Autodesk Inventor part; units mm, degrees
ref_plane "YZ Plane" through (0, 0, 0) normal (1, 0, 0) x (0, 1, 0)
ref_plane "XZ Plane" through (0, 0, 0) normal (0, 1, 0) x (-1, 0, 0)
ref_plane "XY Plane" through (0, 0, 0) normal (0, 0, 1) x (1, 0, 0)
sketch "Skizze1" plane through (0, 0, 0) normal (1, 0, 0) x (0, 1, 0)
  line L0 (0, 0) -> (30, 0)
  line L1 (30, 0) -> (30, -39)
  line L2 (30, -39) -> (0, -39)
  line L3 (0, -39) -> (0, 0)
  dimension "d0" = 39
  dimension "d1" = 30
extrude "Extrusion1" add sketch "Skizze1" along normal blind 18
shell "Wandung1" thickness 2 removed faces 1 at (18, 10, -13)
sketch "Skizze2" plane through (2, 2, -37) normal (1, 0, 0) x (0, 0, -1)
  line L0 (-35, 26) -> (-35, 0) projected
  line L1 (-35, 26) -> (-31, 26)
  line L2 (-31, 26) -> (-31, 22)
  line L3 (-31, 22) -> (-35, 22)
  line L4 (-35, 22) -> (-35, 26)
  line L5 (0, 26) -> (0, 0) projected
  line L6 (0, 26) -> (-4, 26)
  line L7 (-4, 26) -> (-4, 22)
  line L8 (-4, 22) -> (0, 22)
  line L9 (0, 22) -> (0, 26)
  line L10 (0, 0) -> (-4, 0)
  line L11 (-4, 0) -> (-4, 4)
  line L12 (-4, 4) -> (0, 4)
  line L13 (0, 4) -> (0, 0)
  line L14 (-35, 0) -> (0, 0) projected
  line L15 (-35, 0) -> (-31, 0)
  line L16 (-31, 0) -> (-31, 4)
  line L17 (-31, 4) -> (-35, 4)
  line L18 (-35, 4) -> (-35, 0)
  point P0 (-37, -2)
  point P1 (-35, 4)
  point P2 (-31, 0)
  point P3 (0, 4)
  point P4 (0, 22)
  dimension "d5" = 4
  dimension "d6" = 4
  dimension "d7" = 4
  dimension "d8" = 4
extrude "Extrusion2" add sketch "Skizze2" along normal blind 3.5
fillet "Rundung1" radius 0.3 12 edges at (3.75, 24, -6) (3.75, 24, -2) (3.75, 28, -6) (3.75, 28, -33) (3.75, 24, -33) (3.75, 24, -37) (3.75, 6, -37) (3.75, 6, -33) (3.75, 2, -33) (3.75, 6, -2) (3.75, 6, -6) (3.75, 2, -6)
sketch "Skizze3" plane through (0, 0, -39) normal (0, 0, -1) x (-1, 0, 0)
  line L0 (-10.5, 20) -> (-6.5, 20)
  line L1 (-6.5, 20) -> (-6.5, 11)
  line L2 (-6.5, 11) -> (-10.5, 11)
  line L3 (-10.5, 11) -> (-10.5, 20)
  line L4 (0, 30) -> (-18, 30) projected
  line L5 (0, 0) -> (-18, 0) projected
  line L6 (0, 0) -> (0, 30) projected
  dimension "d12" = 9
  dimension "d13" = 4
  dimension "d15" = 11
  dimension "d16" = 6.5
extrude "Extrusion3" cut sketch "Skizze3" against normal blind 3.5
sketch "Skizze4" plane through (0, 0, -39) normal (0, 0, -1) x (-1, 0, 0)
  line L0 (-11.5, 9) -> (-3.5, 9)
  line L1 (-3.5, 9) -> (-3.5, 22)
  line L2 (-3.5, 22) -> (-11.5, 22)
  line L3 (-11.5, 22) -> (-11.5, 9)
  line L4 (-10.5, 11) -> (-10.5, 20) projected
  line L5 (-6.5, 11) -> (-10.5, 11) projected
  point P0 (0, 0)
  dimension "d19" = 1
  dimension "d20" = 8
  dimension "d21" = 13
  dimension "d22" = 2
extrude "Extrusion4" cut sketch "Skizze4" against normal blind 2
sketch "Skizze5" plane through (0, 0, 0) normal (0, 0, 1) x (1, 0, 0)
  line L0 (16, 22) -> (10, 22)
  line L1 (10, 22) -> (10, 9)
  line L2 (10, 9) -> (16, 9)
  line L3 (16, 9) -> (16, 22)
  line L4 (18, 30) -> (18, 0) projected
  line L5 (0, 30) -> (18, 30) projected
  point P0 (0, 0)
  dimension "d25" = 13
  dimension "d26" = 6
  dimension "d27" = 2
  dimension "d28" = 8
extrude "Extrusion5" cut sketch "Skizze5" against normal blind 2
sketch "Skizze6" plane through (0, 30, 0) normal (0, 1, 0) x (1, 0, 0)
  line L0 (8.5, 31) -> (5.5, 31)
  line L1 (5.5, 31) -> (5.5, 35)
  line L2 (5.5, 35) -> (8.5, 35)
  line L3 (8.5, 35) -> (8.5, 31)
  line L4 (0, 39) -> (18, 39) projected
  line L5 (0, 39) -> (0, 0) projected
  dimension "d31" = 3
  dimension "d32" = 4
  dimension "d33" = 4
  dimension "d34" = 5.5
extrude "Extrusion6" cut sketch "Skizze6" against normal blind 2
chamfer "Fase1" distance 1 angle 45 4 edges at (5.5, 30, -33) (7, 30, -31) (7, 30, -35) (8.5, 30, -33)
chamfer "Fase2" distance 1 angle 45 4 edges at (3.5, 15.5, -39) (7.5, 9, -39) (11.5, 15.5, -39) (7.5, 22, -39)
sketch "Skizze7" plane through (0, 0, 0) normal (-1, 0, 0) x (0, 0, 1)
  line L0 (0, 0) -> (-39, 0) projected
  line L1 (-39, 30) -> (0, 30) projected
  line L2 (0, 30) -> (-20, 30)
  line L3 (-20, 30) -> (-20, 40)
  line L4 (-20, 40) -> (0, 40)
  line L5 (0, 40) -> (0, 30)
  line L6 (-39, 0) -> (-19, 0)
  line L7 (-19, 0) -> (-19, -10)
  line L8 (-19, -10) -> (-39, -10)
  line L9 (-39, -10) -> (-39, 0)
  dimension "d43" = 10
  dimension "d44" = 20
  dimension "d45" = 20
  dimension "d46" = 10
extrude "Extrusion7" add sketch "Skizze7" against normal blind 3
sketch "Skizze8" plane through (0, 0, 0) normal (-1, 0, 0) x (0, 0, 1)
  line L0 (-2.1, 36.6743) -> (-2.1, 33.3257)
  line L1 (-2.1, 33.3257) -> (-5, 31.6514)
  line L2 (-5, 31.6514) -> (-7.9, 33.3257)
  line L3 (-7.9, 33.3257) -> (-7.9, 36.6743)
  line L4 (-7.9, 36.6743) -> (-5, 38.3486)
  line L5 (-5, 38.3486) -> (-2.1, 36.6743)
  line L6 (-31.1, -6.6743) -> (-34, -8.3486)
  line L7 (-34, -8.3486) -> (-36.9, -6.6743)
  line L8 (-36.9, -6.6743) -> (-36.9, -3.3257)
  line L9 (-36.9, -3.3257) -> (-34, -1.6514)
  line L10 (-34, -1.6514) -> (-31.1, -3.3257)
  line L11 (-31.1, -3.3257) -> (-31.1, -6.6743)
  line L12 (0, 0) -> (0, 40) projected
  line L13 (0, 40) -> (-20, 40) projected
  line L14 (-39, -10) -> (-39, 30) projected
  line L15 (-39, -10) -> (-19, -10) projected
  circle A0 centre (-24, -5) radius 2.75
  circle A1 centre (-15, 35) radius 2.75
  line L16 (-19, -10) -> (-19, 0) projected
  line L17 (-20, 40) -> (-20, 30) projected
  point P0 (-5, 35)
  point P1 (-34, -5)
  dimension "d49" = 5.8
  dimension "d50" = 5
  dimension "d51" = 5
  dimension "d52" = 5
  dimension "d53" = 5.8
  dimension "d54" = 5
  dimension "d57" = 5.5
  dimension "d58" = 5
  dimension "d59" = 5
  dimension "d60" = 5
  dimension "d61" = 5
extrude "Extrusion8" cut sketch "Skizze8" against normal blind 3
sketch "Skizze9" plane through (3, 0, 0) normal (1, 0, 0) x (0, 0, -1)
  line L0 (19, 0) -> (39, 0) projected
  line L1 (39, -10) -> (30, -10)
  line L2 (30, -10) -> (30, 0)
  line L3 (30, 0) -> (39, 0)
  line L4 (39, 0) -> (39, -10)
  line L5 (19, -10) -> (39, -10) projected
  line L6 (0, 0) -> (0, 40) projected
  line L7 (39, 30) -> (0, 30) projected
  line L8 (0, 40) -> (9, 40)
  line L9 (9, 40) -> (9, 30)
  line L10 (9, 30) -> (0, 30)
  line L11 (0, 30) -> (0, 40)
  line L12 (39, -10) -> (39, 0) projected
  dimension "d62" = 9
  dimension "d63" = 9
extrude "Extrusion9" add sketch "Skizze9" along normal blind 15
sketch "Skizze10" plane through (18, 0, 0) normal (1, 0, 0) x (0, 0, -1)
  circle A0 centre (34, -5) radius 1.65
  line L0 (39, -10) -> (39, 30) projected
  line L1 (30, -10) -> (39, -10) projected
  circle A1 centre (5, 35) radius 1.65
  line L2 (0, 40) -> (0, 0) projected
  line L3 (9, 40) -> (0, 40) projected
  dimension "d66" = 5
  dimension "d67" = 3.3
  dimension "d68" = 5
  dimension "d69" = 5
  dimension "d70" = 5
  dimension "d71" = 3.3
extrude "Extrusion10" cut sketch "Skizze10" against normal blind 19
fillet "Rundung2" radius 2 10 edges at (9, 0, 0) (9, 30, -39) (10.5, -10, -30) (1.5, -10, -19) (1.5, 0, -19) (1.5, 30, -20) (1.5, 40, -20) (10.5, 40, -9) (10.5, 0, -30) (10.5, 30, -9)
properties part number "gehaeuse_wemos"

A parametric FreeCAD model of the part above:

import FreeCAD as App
import Part
import Sketcher

V = App.Vector
Q = App.Units.Quantity


def edges_at(feature, points):
    """Names of the edges that pass closest to the given points."""
    edges = feature.Shape.Edges
    near = lambda p: min(range(len(edges)), key=lambda i: edges[i].distToShape(Part.Vertex(*p))[0])
    return sorted({f"Edge{near(p) + 1}" for p in points})


def faces_at(feature, points):
    """Names of the faces that lie closest to the given points."""
    faces = feature.Shape.Faces
    near = lambda p: min(range(len(faces)), key=lambda i: faces[i].distToShape(Part.Vertex(*p))[0])
    return sorted({f"Face{near(p) + 1}" for p in points})


def add_polygon(sketch, points):
    """Adds a closed chain of lines whose ends are joined by coincident constraints."""
    first, n = sketch.GeometryCount, len(points)
    for a, b in zip(points, points[1:] + points[:1]):
        sketch.addGeometry(Part.LineSegment(App.Vector(*a, 0), App.Vector(*b, 0)), False)
    for i in range(n):
        sketch.addConstraint(Sketcher.Constraint("Coincident", first + i, 2, first + (i + 1) % n, 1))

doc = App.newDocument("Part")
params = doc.addObject("Spreadsheet::Sheet", "Params")
for row, (alias, value) in enumerate([
    ("sketch1_width", "30 mm"),
    ("sketch1_height", "39 mm"),
    ("pad1_length", "18 mm"),
    ("thickness_wall", "2 mm"),
    ("sketch2_width", "4 mm"),
    ("pad2_length", "3.5 mm"),
    ("fillet_radius", "0.3 mm"),
    ("sketch3_width", "4 mm"),
    ("sketch3_height", "9 mm"),
    ("pocket1_length", "3.5 mm"),
    ("sketch4_width", "8 mm"),
    ("sketch4_height", "13 mm"),
    ("pocket2_length", "2 mm"),
    ("sketch5_width", "6 mm"),
    ("sketch5_height", "13 mm"),
    ("pocket3_length", "2 mm"),
    ("sketch6_width", "3 mm"),
    ("sketch6_height", "4 mm"),
    ("pocket4_length", "2 mm"),
    ("chamfer_size", "1 mm"),
    ("chamfer2_size", "1 mm"),
    ("sketch7_width", "10 mm"),
    ("sketch7_height", "20 mm"),
    ("pad3_length", "3 mm"),
    ("sketch8_diameter", "5.5 mm"),
    ("pocket5_length", "3 mm"),
    ("sketch9_height", "9 mm"),
    ("sketch9_width", "10 mm"),
    ("pad4_length", "15 mm"),
    ("sketch10_diameter", "3.3 mm"),
    ("pocket6_length", "19 mm"),
    ("fillet2_radius", "2 mm"),
], start=1):
    params.set(f"A{row}", alias)
    params.set(f"B{row}", "=" + value)
    params.setAlias(f"B{row}", alias)

body = doc.addObject("PartDesign::Body", "Body")

sketch1 = body.newObject("Sketcher::SketchObject", "Sketch")
sketch1.AttachmentSupport = (doc.getObject("YZ_Plane"), [""])
sketch1.MapMode = "FlatFace"
add_polygon(sketch1, [(30, 0), (0, 0), (0, -39), (30, -39)])
sketch1.addConstraint([
    Sketcher.Constraint("Horizontal", 0),
    Sketcher.Constraint("Vertical", 1),
    Sketcher.Constraint("Horizontal", 2),
    Sketcher.Constraint("Vertical", 3),
    Sketcher.Constraint("Coincident", 0, 2, -1, 1),
    Sketcher.Constraint("DistanceX", 0, 2, 0, 1, 30.0),
    Sketcher.Constraint("DistanceY", 1, 2, 1, 1, 39.0),
])
sketch1.setExpression("Constraints[9]", "Params.sketch1_width")
sketch1.setExpression("Constraints[10]", "Params.sketch1_height")
pad1 = body.newObject("PartDesign::Pad", "Pad")
pad1.Profile = sketch1
pad1.setExpression("Length", "Params.pad1_length")
doc.recompute()

thickness = body.newObject("PartDesign::Thickness", "Thickness")
thickness.Base = (pad1, faces_at(pad1, [(18, 10, -13)]))
thickness.setExpression("Value", "Params.thickness_wall")
thickness.Reversed = True
thickness.Join = "Intersection"

sketch2 = body.newObject("Sketcher::SketchObject", "Sketch001")
sketch2.AttachmentSupport = (doc.getObject("YZ_Plane"), [""])
sketch2.MapMode = "FlatFace"
sketch2.AttachmentOffset = App.Placement(V(0, 0, 2), App.Rotation())
add_polygon(sketch2, [(28, -6), (28, -2), (24, -2), (24, -6)])
add_polygon(sketch2, [(24, -33), (24, -37), (28, -37), (28, -33)])
add_polygon(sketch2, [(6, -33), (2, -33), (2, -37), (6, -37)])
add_polygon(sketch2, [(6, -6), (6, -2), (2, -2), (2, -6)])
sketch2.addConstraint([
    Sketcher.Constraint("Vertical", 0),
    Sketcher.Constraint("Horizontal", 1),
    Sketcher.Constraint("Vertical", 2),
    Sketcher.Constraint("Horizontal", 3),
    Sketcher.Constraint("Vertical", 4),
    Sketcher.Constraint("Horizontal", 5),
    Sketcher.Constraint("Vertical", 6),
    Sketcher.Constraint("Horizontal", 7),
    Sketcher.Constraint("Horizontal", 8),
    Sketcher.Constraint("Vertical", 9),
    Sketcher.Constraint("Horizontal", 10),
    Sketcher.Constraint("Vertical", 11),
    Sketcher.Constraint("Vertical", 12),
    Sketcher.Constraint("Horizontal", 13),
    Sketcher.Constraint("Vertical", 14),
    Sketcher.Constraint("Horizontal", 15),
    Sketcher.Constraint("Horizontal", 7, 2, 8, 2),
    Sketcher.Constraint("Horizontal", 5, 2, 9, 2),
    Sketcher.Constraint("Horizontal", 1, 2, 12, 2),
    Sketcher.Constraint("Horizontal", 3, 2, 14, 2),
    Sketcher.Constraint("Vertical", 2, 2, 4, 2),
    Sketcher.Constraint("Vertical", 3, 2, 5, 2),
    Sketcher.Constraint("Vertical", 11, 2, 12, 2),
    Sketcher.Constraint("Vertical", 9, 2, 13, 2),
    Sketcher.Constraint("Equal", 7, 8),
    Sketcher.Constraint("Equal", 15, 0),
    Sketcher.Constraint("Equal", 2, 4),
    Sketcher.Constraint("DistanceX", 1, 2, 1, 1, 4.0),
    Sketcher.Constraint("DistanceX", -1, 1, 0, 2, 28.0),
    Sketcher.Constraint("DistanceY", 0, 2, -1, 1, 2.0),
    Sketcher.Constraint("DistanceY", 4, 2, -1, 1, 37.0),
    Sketcher.Constraint("DistanceX", -1, 1, 8, 2, 2.0),
])
sketch2.setExpression("Constraints[43]", "Params.sketch2_width")
pad2 = body.newObject("PartDesign::Pad", "Pad001")
pad2.Profile = sketch2
pad2.setExpression("Length", "Params.pad2_length")
doc.recompute()

fillet = body.newObject("PartDesign::Fillet", "Fillet")
fillet.Base = (pad2, edges_at(pad2, [
    (3.75, 24, -6),
    (3.75, 24, -2),
    (3.75, 28, -6),
    (3.75, 28, -33),
    (3.75, 24, -33),
    (3.75, 24, -37),
    (3.75, 6, -37),
    (3.75, 6, -33),
    (3.75, 2, -33),
    (3.75, 6, -2),
    (3.75, 6, -6),
    (3.75, 2, -6),
]))
fillet.setExpression("Radius", "Params.fillet_radius")

sketch3 = body.newObject("Sketcher::SketchObject", "Sketch002")
sketch3.AttachmentSupport = (doc.getObject("XY_Plane"), [""])
sketch3.MapMode = "FlatFace"
sketch3.AttachmentOffset = App.Placement(V(0, 0, -39), App.Rotation())
add_polygon(sketch3, [(6.5, 20), (10.5, 20), (10.5, 11), (6.5, 11)])
sketch3.addConstraint([
    Sketcher.Constraint("Horizontal", 0),
    Sketcher.Constraint("Vertical", 1),
    Sketcher.Constraint("Horizontal", 2),
    Sketcher.Constraint("Vertical", 3),
    Sketcher.Constraint("DistanceX", 0, 1, 0, 2, 4.0),
    Sketcher.Constraint("DistanceY", 1, 2, 1, 1, 9.0),
    Sketcher.Constraint("DistanceY", -1, 1, 1, 2, 11.0),
    Sketcher.Constraint("DistanceX", -1, 1, 2, 2, 6.5),
])
sketch3.setExpression("Constraints[8]", "Params.sketch3_width")
sketch3.setExpression("Constraints[9]", "Params.sketch3_height")
pocket1 = body.newObject("PartDesign::Pocket", "Pocket")
pocket1.Profile = sketch3
pocket1.setExpression("Length", "Params.pocket1_length")
pocket1.Reversed = True

sketch4 = body.newObject("Sketcher::SketchObject", "Sketch003")
sketch4.AttachmentSupport = (doc.getObject("XY_Plane"), [""])
sketch4.MapMode = "FlatFace"
sketch4.AttachmentOffset = App.Placement(V(0, 0, -39), App.Rotation())
add_polygon(sketch4, [(11.5, 22), (11.5, 9), (3.5, 9), (3.5, 22)])
sketch4.addConstraint([
    Sketcher.Constraint("Vertical", 0),
    Sketcher.Constraint("Horizontal", 1),
    Sketcher.Constraint("Vertical", 2),
    Sketcher.Constraint("Horizontal", 3),
    Sketcher.Constraint("DistanceX", 1, 2, 1, 1, 8.0),
    Sketcher.Constraint("DistanceY", 0, 2, 0, 1, 13.0),
    Sketcher.Constraint("DistanceY", -1, 1, 0, 2, 9.0),
    Sketcher.Constraint("DistanceX", -1, 1, 0, 2, 11.5),
])
sketch4.setExpression("Constraints[8]", "Params.sketch4_width")
sketch4.setExpression("Constraints[9]", "Params.sketch4_height")
pocket2 = body.newObject("PartDesign::Pocket", "Pocket001")
pocket2.Profile = sketch4
pocket2.setExpression("Length", "Params.pocket2_length")
pocket2.Reversed = True

sketch5 = body.newObject("Sketcher::SketchObject", "Sketch004")
sketch5.AttachmentSupport = (doc.getObject("XY_Plane"), [""])
sketch5.MapMode = "FlatFace"
add_polygon(sketch5, [(16, 9), (16, 22), (10, 22), (10, 9)])
sketch5.addConstraint([
    Sketcher.Constraint("Vertical", 0),
    Sketcher.Constraint("Horizontal", 1),
    Sketcher.Constraint("Vertical", 2),
    Sketcher.Constraint("Horizontal", 3),
    Sketcher.Constraint("DistanceX", 1, 2, 1, 1, 6.0),
    Sketcher.Constraint("DistanceY", 0, 1, 0, 2, 13.0),
    Sketcher.Constraint("DistanceX", -1, 1, 0, 2, 16.0),
    Sketcher.Constraint("DistanceY", -1, 1, 0, 2, 22.0),
])
sketch5.setExpression("Constraints[8]", "Params.sketch5_width")
sketch5.setExpression("Constraints[9]", "Params.sketch5_height")
pocket3 = body.newObject("PartDesign::Pocket", "Pocket002")
pocket3.Profile = sketch5
pocket3.setExpression("Length", "Params.pocket3_length")

sketch6 = body.newObject("Sketcher::SketchObject", "Sketch005")
sketch6.AttachmentSupport = (doc.getObject("XZ_Plane"), [""])
sketch6.MapMode = "FlatFace"
sketch6.AttachmentOffset = App.Placement(V(0, 0, -30), App.Rotation())
add_polygon(sketch6, [(5.5, -31), (8.5, -31), (8.5, -35), (5.5, -35)])
sketch6.addConstraint([
    Sketcher.Constraint("Horizontal", 0),
    Sketcher.Constraint("Vertical", 1),
    Sketcher.Constraint("Horizontal", 2),
    Sketcher.Constraint("Vertical", 3),
    Sketcher.Constraint("DistanceX", 0, 1, 0, 2, 3.0),
    Sketcher.Constraint("DistanceY", 1, 2, 1, 1, 4.0),
    Sketcher.Constraint("DistanceX", -1, 1, 2, 2, 5.5),
    Sketcher.Constraint("DistanceY", 0, 2, -1, 1, 31.0),
])
sketch6.setExpression("Constraints[8]", "Params.sketch6_width")
sketch6.setExpression("Constraints[9]", "Params.sketch6_height")
pocket4 = body.newObject("PartDesign::Pocket", "Pocket003")
pocket4.Profile = sketch6
pocket4.setExpression("Length", "Params.pocket4_length")
pocket4.Reversed = True
doc.recompute()

chamfer = body.newObject("PartDesign::Chamfer", "Chamfer")
chamfer.Base = (pocket4, edges_at(pocket4, [
    (5.5, 30, -33),
    (7, 30, -31),
    (7, 30, -35),
    (8.5, 30, -33),
]))
chamfer.setExpression("Size", "Params.chamfer_size")
doc.recompute()

chamfer2 = body.newObject("PartDesign::Chamfer", "Chamfer001")
chamfer2.Base = (chamfer, edges_at(chamfer, [
    (3.5, 15.5, -39),
    (7.5, 9, -39),
    (11.5, 15.5, -39),
    (7.5, 22, -39),
]))
chamfer2.setExpression("Size", "Params.chamfer2_size")

sketch7 = body.newObject("Sketcher::SketchObject", "Sketch006")
sketch7.AttachmentSupport = (doc.getObject("YZ_Plane"), [""])
sketch7.MapMode = "FlatFace"
add_polygon(sketch7, [(-10, -19), (0, -19), (0, -39), (-10, -39)])
add_polygon(sketch7, [(40, -20), (30, -20), (30, 0), (40, 0)])
sketch7.addConstraint([
    Sketcher.Constraint("Horizontal", 0),
    Sketcher.Constraint("Vertical", 1),
    Sketcher.Constraint("Horizontal", 2),
    Sketcher.Constraint("Vertical", 3),
    Sketcher.Constraint("Horizontal", 4),
    Sketcher.Constraint("Vertical", 5),
    Sketcher.Constraint("Horizontal", 6),
    Sketcher.Constraint("Vertical", 7),
    Sketcher.Constraint("PointOnObject", 0, 2, -2),
    Sketcher.Constraint("PointOnObject", 5, 2, -1),
    Sketcher.Constraint("Equal", 2, 4),
    Sketcher.Constraint("Equal", 3, 5),
    Sketcher.Constraint("DistanceX", 0, 1, 0, 2, 10.0),
    Sketcher.Constraint("DistanceY", 1, 2, 1, 1, 20.0),
    Sketcher.Constraint("DistanceY", 0, 2, -1, 1, 19.0),
    Sketcher.Constraint("DistanceX", -1, 1, 4, 2, 30.0),
])
sketch7.setExpression("Constraints[20]", "Params.sketch7_width")
sketch7.setExpression("Constraints[21]", "Params.sketch7_height")
pad3 = body.newObject("PartDesign::Pad", "Pad002")
pad3.Profile = sketch7
pad3.setExpression("Length", "Params.pad3_length")

sketch8 = body.newObject("Sketcher::SketchObject", "Sketch007")
sketch8.AttachmentSupport = (doc.getObject("YZ_Plane"), [""])
sketch8.MapMode = "FlatFace"
add_polygon(sketch8, [(33.3257, -2.1), (36.6743, -2.1), (38.3486, -5), (36.6743, -7.9), (33.3257, -7.9), (31.6514, -5)])
add_polygon(sketch8, [(-8.3486, -34), (-6.6743, -31.1), (-3.3257, -31.1), (-1.6514, -34), (-3.3257, -36.9), (-6.6743, -36.9)])
sketch8.addGeometry(Part.Circle(V(-5, -24, 0), V(0, 0, 1), 2.75), False)
sketch8.addGeometry(Part.Circle(V(35, -15, 0), V(0, 0, 1), 2.75), False)
sketch8.addConstraint([
    Sketcher.Constraint("Horizontal", 0),
    Sketcher.Constraint("Horizontal", 3),
    Sketcher.Constraint("Horizontal", 7),
    Sketcher.Constraint("Horizontal", 10),
    Sketcher.Constraint("Equal", 12, 13),
    Sketcher.Constraint("Parallel", 1, 4),
    Sketcher.Constraint("Parallel", 2, 5),
    Sketcher.Constraint("Parallel", 5, 6),
    Sketcher.Constraint("Parallel", 4, 8),
    Sketcher.Constraint("Parallel", 6, 9),
    Sketcher.Constraint("Parallel", 8, 11),
    Sketcher.Constraint("Horizontal", 1, 2, 4, 2),
    Sketcher.Constraint("Horizontal", 8, 2, 11, 2),
    Sketcher.Constraint("Vertical", 0, 2, 2, 2),
    Sketcher.Constraint("Vertical", 3, 2, 5, 2),
    Sketcher.Constraint("Vertical", 7, 2, 9, 2),
    Sketcher.Constraint("Equal", 3, 7),
    Sketcher.Constraint("Equal", 5, 6),
    Sketcher.Constraint("Diameter", 12, 5.5),
    Sketcher.Constraint("DistanceX", 12, 3, -1, 1, 5.0),
    Sketcher.Constraint("DistanceY", 1, 2, -1, 1, 5.0),
    Sketcher.Constraint("DistanceY", 2, 2, 0, 2, 5.8),
    Sketcher.Constraint("Angle", 1, Q("-60.0002 deg")),
    Sketcher.Constraint("DistanceY", 12, 3, -1, 1, 24.0),
    Sketcher.Constraint("DistanceX", -1, 1, 13, 3, 35.0),
    Sketcher.Constraint("DistanceY", 13, 3, -1, 1, 15.0),
    Sketcher.Constraint("DistanceY", 8, 2, -1, 1, 34.0),
    Sketcher.Constraint("DistanceX", 6, 2, 3, 2, 40.0),
    Sketcher.Constraint("DistanceX", 0, 1, 0, 2, 3.3486),
    Sketcher.Constraint("DistanceX", -1, 1, 0, 2, 36.6743),
])
sketch8.setExpression("Constraints[30]", "Params.sketch8_diameter")
pocket5 = body.newObject("PartDesign::Pocket", "Pocket004")
pocket5.Profile = sketch8
pocket5.setExpression("Length", "Params.pocket5_length")
pocket5.Reversed = True

sketch9 = body.newObject("Sketcher::SketchObject", "Sketch008")
sketch9.AttachmentSupport = (doc.getObject("YZ_Plane"), [""])
sketch9.MapMode = "FlatFace"
sketch9.AttachmentOffset = App.Placement(V(0, 0, 3), App.Rotation())
add_polygon(sketch9, [(0, -39), (0, -30), (-10, -30), (-10, -39)])
add_polygon(sketch9, [(40, 0), (30, 0), (30, -9), (40, -9)])
sketch9.addConstraint([
    Sketcher.Constraint("Vertical", 0),
    Sketcher.Constraint("Horizontal", 1),
    Sketcher.Constraint("Vertical", 2),
    Sketcher.Constraint("Horizontal", 3),
    Sketcher.Constraint("Horizontal", 4),
    Sketcher.Constraint("Vertical", 5),
    Sketcher.Constraint("Horizontal", 6),
    Sketcher.Constraint("Vertical", 7),
    Sketcher.Constraint("PointOnObject", 0, 2, -2),
    Sketcher.Constraint("PointOnObject", 4, 2, -1),
    Sketcher.Constraint("Equal", 3, 4),
    Sketcher.Constraint("Equal", 2, 5),
    Sketcher.Constraint("DistanceY", 0, 1, 0, 2, 9.0),
    Sketcher.Constraint("DistanceX", 1, 2, 1, 1, 10.0),
    Sketcher.Constraint("DistanceY", 0, 2, -1, 1, 30.0),
    Sketcher.Constraint("DistanceX", -1, 1, 4, 2, 30.0),
])
sketch9.setExpression("Constraints[20]", "Params.sketch9_height")
sketch9.setExpression("Constraints[21]", "Params.sketch9_width")
pad4 = body.newObject("PartDesign::Pad", "Pad003")
pad4.Profile = sketch9
pad4.setExpression("Length", "Params.pad4_length")

sketch10 = body.newObject("Sketcher::SketchObject", "Sketch009")
sketch10.AttachmentSupport = (doc.getObject("YZ_Plane"), [""])
sketch10.MapMode = "FlatFace"
sketch10.AttachmentOffset = App.Placement(V(0, 0, 18), App.Rotation())
sketch10.addGeometry([
    Part.Circle(V(-5, -34, 0), V(0, 0, 1), 1.65),
    Part.Circle(V(35, -5, 0), V(0, 0, 1), 1.65),
], False)
sketch10.addConstraint([
    Sketcher.Constraint("Equal", 0, 1),
    Sketcher.Constraint("Diameter", 0, 3.3),
    Sketcher.Constraint("DistanceX", 0, 3, -1, 1, 5.0),
    Sketcher.Constraint("DistanceY", 1, 3, -1, 1, 5.0),
    Sketcher.Constraint("DistanceY", 0, 3, -1, 1, 34.0),
    Sketcher.Constraint("DistanceX", -1, 1, 1, 3, 35.0),
])
sketch10.setExpression("Constraints[1]", "Params.sketch10_diameter")
pocket6 = body.newObject("PartDesign::Pocket", "Pocket005")
pocket6.Profile = sketch10
pocket6.setExpression("Length", "Params.pocket6_length")
doc.recompute()

fillet2 = body.newObject("PartDesign::Fillet", "Fillet001")
fillet2.Base = (pocket6, edges_at(pocket6, [
    (9, 0, 0),
    (9, 30, -39),
    (10.5, -10, -30),
    (1.5, -10, -19),
    (1.5, 0, -19),
    (1.5, 30, -20),
    (1.5, 40, -20),
    (10.5, 40, -9),
    (10.5, 0, -30),
    (10.5, 30, -9),
]))
fillet2.setExpression("Radius", "Params.fillet2_radius")

doc.recompute()
